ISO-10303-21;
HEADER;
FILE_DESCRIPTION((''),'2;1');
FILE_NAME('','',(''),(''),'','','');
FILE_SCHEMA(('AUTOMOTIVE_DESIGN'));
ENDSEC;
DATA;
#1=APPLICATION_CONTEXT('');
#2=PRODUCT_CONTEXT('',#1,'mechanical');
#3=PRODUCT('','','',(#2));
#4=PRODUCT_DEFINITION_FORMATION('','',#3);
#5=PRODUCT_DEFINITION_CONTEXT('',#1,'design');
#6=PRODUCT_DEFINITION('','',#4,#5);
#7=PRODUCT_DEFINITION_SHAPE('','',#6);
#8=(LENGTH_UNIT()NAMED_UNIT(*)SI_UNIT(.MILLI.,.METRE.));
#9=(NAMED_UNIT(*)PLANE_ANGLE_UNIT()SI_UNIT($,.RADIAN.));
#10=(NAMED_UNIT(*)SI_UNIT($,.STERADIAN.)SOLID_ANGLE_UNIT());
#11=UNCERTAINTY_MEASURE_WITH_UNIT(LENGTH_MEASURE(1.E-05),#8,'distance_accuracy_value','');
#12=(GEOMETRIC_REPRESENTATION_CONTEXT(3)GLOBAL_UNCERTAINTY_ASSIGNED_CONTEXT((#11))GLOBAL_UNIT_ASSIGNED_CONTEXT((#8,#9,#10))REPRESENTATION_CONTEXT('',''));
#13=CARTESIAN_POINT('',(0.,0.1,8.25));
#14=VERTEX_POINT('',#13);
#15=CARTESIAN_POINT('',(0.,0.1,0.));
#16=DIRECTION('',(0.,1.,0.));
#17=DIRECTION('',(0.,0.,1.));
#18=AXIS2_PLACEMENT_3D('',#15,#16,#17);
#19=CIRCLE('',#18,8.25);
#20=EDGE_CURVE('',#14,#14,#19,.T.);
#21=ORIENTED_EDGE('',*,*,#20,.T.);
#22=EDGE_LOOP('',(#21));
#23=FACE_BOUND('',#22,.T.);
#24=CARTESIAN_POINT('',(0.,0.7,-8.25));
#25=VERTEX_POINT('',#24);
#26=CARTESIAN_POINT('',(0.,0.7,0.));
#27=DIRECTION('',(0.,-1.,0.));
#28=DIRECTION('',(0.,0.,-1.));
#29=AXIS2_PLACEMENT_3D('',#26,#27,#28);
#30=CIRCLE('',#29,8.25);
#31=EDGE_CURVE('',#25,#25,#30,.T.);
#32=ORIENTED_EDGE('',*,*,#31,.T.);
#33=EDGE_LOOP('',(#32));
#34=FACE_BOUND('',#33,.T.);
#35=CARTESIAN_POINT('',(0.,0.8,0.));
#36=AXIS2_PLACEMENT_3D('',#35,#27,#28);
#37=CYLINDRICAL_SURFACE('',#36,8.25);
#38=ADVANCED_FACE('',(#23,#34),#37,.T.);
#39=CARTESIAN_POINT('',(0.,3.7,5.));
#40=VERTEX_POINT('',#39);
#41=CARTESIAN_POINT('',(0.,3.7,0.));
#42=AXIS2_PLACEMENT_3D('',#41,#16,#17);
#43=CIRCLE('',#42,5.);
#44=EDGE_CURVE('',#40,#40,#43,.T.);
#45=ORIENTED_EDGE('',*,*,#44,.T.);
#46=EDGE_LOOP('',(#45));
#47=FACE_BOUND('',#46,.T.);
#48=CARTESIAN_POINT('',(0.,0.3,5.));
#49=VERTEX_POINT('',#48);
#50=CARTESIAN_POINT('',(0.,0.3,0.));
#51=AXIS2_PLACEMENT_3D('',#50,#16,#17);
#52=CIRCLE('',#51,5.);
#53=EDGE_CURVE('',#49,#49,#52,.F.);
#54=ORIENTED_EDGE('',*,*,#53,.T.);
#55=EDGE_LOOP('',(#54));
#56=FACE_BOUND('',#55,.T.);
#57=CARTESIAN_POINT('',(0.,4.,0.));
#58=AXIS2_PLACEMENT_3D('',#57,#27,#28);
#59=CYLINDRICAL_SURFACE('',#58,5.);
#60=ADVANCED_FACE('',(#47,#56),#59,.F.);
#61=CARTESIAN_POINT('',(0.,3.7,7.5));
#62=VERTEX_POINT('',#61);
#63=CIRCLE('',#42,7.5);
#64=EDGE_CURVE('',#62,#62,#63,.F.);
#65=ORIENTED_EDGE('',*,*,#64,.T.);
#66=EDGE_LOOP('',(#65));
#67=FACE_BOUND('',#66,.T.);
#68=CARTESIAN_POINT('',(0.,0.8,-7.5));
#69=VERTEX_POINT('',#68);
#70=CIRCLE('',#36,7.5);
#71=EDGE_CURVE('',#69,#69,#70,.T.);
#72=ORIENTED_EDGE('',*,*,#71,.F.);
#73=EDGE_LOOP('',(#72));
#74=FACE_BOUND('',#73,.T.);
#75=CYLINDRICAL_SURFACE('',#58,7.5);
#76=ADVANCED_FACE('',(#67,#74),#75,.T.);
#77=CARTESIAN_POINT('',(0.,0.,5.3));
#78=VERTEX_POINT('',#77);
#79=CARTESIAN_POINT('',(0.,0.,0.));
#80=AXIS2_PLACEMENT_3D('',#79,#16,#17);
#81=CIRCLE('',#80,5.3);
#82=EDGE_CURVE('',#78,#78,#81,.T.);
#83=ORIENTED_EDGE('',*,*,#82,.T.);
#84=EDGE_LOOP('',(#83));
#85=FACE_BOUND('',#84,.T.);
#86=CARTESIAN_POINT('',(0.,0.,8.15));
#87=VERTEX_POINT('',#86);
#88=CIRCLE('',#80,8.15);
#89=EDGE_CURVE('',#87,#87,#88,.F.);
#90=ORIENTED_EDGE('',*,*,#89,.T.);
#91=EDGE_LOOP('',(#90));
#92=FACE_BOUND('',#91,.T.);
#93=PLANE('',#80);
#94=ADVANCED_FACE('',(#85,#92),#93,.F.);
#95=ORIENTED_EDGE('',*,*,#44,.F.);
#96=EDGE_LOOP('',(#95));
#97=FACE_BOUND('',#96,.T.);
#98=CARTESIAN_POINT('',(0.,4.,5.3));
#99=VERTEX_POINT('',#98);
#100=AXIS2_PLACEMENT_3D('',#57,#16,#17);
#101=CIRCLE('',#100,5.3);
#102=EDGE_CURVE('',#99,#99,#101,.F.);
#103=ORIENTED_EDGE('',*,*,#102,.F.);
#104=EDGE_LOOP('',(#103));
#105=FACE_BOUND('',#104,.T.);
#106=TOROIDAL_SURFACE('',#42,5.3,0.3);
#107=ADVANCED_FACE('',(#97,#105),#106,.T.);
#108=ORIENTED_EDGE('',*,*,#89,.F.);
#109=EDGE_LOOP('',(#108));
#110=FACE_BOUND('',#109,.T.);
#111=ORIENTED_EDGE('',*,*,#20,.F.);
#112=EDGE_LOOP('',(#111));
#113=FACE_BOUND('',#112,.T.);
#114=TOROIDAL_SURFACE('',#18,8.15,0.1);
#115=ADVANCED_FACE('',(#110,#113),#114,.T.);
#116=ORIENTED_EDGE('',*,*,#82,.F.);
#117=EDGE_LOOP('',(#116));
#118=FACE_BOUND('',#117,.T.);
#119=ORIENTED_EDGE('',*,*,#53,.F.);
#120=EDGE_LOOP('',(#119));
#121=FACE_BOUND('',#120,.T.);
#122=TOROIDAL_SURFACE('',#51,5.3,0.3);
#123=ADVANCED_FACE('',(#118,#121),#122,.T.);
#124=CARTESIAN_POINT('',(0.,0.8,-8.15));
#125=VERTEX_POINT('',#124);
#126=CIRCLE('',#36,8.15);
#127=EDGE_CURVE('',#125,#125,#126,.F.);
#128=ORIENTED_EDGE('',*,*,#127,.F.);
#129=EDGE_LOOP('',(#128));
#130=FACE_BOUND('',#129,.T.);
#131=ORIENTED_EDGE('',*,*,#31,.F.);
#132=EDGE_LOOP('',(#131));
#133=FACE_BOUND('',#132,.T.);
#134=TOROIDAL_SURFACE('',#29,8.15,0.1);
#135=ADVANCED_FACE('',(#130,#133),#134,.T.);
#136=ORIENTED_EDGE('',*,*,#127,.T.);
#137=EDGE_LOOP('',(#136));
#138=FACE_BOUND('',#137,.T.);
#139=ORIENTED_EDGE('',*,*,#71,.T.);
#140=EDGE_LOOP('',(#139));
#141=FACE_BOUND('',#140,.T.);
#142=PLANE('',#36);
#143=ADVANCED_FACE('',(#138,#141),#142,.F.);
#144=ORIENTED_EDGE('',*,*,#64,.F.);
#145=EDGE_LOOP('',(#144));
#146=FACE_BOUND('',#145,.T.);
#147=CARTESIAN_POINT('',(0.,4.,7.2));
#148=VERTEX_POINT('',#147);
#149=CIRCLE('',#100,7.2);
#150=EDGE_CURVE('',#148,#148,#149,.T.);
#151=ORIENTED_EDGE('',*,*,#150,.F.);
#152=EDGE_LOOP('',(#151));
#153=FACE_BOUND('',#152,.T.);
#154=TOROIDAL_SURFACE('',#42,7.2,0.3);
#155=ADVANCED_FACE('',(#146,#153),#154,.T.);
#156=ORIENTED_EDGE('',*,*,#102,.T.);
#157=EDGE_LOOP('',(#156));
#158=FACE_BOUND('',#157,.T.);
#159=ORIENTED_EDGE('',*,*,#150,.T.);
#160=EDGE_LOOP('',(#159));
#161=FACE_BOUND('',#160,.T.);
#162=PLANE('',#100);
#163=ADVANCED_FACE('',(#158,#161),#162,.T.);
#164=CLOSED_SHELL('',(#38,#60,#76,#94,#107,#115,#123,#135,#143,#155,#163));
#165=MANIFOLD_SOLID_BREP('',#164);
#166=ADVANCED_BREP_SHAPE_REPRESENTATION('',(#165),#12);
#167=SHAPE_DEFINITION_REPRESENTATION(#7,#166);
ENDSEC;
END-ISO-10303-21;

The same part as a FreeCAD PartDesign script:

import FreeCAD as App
import Part
import Sketcher

V = App.Vector
Q = App.Units.Quantity


def edges_at(feature, points):
    """Names of the edges that pass closest to the given points."""
    edges = feature.Shape.Edges
    near = lambda p: min(range(len(edges)), key=lambda i: edges[i].distToShape(Part.Vertex(*p))[0])
    return sorted({f"Edge{near(p) + 1}" for p in points})

doc = App.newDocument("Part")
params = doc.addObject("Spreadsheet::Sheet", "Params")
for row, (alias, value) in enumerate([
    ("sketch1_diameter", "15 mm"),
    ("sketch1_diameter2", "10 mm"),
    ("pad1_length", "4 mm"),
    ("sketch2_diameter", "10 mm"),
    ("sketch2_diameter2", "16.5 mm"),
    ("pad2_length", "0.8 mm"),
    ("fillet_radius", "0.3 mm"),
    ("fillet2_radius", "0.1 mm"),
], start=1):
    params.set(f"A{row}", alias)
    params.set(f"B{row}", "=" + value)
    params.setAlias(f"B{row}", alias)

body = doc.addObject("PartDesign::Body", "Body")

sketch1 = body.newObject("Sketcher::SketchObject", "Sketch")
sketch1.AttachmentSupport = (doc.getObject("XZ_Plane"), [""])
sketch1.MapMode = "FlatFace"
sketch1.addGeometry([
    Part.Circle(V(0, 0, 0), V(0, 0, 1), 8),
    Part.Circle(V(0, 0, 0), V(0, 0, 1), 5),
], False)
sketch1.addConstraint([
    Sketcher.Constraint("Coincident", 0, 3, -1, 1),
    Sketcher.Constraint("Coincident", 1, 3, -1, 1),
    Sketcher.Constraint("Diameter", 0, Q("15 mm")),
    Sketcher.Constraint("Diameter", 1, Q("10 mm")),
])
sketch1.setExpression("Constraints[2]", "Params.sketch1_diameter")
sketch1.setExpression("Constraints[3]", "Params.sketch1_diameter2")
pad1 = body.newObject("PartDesign::Pad", "Pad")
pad1.Profile = sketch1
pad1.setExpression("Length", "Params.pad1_length")
pad1.Reversed = True

sketch2 = body.newObject("Sketcher::SketchObject", "Sketch001")
sketch2.AttachmentSupport = (doc.getObject("XZ_Plane"), [""])
sketch2.MapMode = "FlatFace"
sketch2.addGeometry([
    Part.Circle(V(0, 0, 0), V(0, 0, 1), 8),
    Part.Circle(V(0, 0, 0), V(0, 0, 1), 5),
], False)
sketch2.addConstraint([
    Sketcher.Constraint("Coincident", 0, 3, -1, 1),
    Sketcher.Constraint("Coincident", 1, 3, -1, 1),
    Sketcher.Constraint("Diameter", 1, Q("10 mm")),
    Sketcher.Constraint("Diameter", 0, Q("16.5 mm")),
])
sketch2.setExpression("Constraints[2]", "Params.sketch2_diameter")
sketch2.setExpression("Constraints[3]", "Params.sketch2_diameter2")
pad2 = body.newObject("PartDesign::Pad", "Pad001")
pad2.Profile = sketch2
pad2.setExpression("Length", "Params.pad2_length")
pad2.Reversed = True
doc.recompute()

fillet = body.newObject("PartDesign::Fillet", "Fillet")
fillet.Base = (pad2, edges_at(pad2, [(0, 4, -7.5), (0, 0, -5), (0, 4, -5)]))
fillet.setExpression("Radius", "Params.fillet_radius")
doc.recompute()

fillet2 = body.newObject("PartDesign::Fillet", "Fillet001")
fillet2.Base = (fillet, edges_at(fillet, [(0, 0, 8.25), (0, 0.8, 8.25)]))
fillet2.setExpression("Radius", "Params.fillet2_radius")

doc.recompute()
